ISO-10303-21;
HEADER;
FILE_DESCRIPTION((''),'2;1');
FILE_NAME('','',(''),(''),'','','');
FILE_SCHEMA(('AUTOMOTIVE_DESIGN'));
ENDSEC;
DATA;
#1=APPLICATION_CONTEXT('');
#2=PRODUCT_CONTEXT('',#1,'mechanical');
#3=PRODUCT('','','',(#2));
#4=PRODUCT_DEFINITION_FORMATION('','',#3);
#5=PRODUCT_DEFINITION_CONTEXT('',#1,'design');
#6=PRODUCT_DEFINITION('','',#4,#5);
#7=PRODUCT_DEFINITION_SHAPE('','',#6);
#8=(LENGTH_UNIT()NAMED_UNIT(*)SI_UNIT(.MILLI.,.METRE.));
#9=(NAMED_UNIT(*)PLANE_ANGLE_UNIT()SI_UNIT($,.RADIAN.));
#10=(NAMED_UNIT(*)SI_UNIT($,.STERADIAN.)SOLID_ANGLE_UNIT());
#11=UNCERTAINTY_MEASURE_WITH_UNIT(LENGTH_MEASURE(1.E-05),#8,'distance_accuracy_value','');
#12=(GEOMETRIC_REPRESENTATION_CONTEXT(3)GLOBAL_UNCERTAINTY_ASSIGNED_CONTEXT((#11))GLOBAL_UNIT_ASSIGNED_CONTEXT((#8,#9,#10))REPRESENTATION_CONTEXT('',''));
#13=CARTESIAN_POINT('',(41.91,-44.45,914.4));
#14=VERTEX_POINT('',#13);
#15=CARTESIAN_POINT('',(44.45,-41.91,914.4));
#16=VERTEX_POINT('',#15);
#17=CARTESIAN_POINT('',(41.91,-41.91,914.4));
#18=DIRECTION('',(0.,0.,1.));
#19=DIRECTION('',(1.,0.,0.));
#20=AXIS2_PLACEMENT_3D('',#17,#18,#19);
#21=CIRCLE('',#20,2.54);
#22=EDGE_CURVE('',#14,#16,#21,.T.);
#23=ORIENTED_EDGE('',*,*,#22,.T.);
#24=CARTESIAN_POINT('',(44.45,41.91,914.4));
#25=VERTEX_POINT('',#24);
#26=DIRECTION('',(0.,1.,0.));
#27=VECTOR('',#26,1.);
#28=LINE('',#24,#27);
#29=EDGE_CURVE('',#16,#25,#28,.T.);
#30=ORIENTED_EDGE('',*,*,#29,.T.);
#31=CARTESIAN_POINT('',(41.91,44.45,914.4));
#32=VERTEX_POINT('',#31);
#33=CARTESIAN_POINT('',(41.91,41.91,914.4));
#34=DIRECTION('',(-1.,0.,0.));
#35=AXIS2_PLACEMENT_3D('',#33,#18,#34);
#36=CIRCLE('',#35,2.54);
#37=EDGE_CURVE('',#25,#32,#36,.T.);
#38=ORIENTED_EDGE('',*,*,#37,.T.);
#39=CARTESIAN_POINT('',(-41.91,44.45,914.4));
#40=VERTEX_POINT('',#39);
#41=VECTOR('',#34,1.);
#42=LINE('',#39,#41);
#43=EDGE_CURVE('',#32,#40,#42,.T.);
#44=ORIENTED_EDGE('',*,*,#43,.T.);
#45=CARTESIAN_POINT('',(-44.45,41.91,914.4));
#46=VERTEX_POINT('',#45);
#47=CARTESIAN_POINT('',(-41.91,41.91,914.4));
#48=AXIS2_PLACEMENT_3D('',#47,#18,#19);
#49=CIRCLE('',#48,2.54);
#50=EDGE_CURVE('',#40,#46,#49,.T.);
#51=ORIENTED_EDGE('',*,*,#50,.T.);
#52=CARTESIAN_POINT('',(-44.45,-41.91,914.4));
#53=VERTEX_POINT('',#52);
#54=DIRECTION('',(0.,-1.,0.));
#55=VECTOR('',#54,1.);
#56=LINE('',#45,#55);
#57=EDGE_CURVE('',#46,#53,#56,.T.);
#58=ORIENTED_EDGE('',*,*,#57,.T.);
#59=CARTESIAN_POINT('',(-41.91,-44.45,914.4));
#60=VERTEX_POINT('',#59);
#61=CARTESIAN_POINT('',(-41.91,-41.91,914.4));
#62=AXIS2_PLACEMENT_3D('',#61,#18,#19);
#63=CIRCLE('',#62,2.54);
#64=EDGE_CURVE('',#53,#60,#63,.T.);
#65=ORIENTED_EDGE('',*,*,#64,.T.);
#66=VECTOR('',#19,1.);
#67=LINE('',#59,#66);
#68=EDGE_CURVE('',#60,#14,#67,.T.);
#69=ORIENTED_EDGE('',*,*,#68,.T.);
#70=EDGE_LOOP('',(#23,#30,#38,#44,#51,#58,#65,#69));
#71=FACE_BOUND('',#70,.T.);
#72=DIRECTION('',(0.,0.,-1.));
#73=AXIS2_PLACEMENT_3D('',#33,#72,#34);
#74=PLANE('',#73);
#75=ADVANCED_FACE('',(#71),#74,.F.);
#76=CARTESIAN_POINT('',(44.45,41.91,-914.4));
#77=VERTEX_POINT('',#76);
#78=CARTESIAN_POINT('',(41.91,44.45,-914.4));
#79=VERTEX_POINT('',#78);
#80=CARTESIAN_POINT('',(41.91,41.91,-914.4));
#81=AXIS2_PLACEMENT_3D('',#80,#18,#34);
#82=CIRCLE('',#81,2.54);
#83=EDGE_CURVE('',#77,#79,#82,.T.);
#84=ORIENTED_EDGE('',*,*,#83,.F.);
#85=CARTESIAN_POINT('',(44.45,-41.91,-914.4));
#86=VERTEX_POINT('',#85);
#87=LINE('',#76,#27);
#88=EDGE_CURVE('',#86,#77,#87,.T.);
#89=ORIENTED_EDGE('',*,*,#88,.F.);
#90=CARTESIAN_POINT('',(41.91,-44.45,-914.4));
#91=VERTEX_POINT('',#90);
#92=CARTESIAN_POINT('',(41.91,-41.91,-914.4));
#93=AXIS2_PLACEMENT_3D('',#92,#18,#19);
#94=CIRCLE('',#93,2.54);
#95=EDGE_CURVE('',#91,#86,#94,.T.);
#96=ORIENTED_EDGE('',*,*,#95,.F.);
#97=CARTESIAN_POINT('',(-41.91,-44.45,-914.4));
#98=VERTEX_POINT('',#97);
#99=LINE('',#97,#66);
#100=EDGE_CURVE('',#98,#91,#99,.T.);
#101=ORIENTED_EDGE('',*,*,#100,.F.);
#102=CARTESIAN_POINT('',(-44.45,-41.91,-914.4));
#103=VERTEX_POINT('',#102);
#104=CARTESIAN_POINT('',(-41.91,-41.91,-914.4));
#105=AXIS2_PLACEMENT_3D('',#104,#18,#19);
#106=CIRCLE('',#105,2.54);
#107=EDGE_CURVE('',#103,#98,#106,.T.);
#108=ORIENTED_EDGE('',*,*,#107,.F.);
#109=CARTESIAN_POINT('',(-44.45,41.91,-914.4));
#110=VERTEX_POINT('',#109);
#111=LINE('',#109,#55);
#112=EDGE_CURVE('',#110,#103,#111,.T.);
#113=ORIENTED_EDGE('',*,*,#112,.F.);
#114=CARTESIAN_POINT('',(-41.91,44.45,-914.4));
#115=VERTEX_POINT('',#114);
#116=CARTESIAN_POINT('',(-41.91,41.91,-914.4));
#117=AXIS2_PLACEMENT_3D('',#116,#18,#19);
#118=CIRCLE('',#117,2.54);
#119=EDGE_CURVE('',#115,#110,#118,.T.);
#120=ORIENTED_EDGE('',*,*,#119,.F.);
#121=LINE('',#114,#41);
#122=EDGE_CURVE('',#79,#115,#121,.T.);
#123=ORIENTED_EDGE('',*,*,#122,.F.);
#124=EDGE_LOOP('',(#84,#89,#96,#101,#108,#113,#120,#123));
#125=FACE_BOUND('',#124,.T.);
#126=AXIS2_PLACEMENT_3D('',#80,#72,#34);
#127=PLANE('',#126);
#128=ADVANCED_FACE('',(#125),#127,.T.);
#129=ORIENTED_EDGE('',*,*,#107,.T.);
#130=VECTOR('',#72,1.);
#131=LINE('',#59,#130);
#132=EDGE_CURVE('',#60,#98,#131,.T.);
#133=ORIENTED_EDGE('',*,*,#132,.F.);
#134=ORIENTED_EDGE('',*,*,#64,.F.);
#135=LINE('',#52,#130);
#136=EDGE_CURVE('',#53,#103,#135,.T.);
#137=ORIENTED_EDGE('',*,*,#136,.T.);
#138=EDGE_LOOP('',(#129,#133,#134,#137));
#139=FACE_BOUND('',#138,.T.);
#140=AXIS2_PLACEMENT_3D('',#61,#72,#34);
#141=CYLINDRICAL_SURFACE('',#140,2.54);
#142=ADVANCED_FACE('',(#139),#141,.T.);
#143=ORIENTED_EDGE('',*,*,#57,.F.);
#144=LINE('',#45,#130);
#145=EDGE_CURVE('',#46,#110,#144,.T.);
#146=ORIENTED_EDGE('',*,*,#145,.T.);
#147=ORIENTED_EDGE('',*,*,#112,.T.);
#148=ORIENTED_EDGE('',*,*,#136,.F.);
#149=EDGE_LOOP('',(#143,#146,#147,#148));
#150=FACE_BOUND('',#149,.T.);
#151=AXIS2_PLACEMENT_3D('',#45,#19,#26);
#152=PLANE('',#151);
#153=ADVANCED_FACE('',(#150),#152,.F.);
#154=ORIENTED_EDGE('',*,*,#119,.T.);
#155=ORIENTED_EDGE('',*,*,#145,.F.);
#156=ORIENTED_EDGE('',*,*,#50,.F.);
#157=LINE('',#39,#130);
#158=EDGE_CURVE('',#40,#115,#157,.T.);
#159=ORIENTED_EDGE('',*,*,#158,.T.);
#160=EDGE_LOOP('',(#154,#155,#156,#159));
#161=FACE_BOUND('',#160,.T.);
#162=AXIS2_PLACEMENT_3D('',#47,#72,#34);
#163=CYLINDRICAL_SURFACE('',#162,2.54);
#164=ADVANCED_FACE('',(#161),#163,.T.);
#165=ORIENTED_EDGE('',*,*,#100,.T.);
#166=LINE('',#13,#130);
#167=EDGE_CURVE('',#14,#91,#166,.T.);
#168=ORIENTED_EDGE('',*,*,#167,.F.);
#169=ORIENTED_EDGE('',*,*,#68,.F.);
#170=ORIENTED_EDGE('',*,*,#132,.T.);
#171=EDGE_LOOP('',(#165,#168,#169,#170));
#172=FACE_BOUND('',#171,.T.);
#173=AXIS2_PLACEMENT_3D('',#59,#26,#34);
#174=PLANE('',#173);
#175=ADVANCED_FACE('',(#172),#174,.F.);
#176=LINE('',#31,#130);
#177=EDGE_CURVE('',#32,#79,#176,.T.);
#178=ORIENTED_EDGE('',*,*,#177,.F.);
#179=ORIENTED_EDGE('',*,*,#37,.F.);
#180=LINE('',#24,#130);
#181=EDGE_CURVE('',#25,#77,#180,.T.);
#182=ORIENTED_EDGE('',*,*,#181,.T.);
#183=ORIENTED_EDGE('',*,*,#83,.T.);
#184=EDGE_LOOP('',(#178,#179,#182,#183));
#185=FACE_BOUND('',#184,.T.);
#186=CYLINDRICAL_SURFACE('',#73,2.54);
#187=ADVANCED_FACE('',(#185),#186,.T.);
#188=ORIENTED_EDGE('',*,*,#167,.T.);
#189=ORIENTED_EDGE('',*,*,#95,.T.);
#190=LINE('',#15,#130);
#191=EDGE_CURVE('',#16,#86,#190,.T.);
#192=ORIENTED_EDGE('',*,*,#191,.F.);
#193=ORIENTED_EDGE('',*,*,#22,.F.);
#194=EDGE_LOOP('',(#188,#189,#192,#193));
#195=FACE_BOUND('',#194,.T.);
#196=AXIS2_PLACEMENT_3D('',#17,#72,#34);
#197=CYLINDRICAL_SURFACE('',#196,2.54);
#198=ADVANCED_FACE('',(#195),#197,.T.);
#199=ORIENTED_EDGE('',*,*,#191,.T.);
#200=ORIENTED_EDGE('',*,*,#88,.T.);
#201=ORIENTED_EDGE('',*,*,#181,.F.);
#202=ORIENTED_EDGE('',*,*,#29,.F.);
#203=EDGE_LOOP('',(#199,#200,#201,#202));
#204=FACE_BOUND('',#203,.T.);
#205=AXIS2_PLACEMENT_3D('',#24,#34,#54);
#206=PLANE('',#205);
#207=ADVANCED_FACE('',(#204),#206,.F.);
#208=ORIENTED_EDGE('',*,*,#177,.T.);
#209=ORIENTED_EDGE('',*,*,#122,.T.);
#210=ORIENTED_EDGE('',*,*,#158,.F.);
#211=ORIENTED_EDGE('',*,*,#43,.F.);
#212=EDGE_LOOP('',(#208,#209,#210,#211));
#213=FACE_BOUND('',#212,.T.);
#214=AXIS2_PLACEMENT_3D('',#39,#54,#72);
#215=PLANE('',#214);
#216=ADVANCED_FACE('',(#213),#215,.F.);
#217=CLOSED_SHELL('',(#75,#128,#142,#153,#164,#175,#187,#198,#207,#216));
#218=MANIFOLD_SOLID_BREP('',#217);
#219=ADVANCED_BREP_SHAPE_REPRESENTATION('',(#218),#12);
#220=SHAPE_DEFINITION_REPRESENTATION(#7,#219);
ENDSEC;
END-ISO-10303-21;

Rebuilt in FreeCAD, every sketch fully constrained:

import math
import FreeCAD as App
import Part
import Sketcher
from FreeCAD import Vector
Q = App.Units.Quantity

doc = App.newDocument("Part")
params = doc.addObject("Spreadsheet::Sheet", "Params")
for row, (alias, value) in enumerate([
    ("sketch1_radius", "0.1 in"),
    ("sketch1_width", "3.3 in"),
    ("pad1_length", "72 in"),
], start=1):
    params.set(f"A{row}", alias)
    params.set(f"B{row}", "=" + value)
    params.setAlias(f"B{row}", alias)

body = doc.addObject("PartDesign::Body", "Body")

sketch1 = doc.addObject("Sketcher::SketchObject", "Sketch")
body.addObject(sketch1)
sketch1.AttachmentSupport = (doc.XY_Plane, [""])
sketch1.MapMode = "FlatFace"
sketch1.addGeometry([
    Part.LineSegment(Vector(41.91, 44.45, 0), Vector(-41.91, 44.45, 0)),
    Part.ArcOfCircle(Part.Circle(Vector(-41.91, 41.91, 0), Vector(0, 0, 1), 2.54), math.radians(90), math.radians(180)),
    Part.LineSegment(Vector(-44.45, 41.91, 0), Vector(-44.45, -41.91, 0)),
    Part.ArcOfCircle(Part.Circle(Vector(-41.91, -41.91, 0), Vector(0, 0, 1), 2.54), math.radians(-180), math.radians(-90)),
    Part.LineSegment(Vector(-41.91, -44.45, 0), Vector(41.91, -44.45, 0)),
    Part.ArcOfCircle(Part.Circle(Vector(41.91, -41.91, 0), Vector(0, 0, 1), 2.54), math.radians(-90), math.radians(0)),
    Part.LineSegment(Vector(44.45, -41.91, 0), Vector(44.45, 41.91, 0)),
    Part.ArcOfCircle(Part.Circle(Vector(41.91, 41.91, 0), Vector(0, 0, 1), 2.54), math.radians(0), math.radians(90)),
], False)
sketch1.addConstraint([
    Sketcher.Constraint("Tangent", 0, 2, 1, 1),
    Sketcher.Constraint("Tangent", 1, 2, 2, 1),
    Sketcher.Constraint("Tangent", 2, 2, 3, 1),
    Sketcher.Constraint("Tangent", 3, 2, 4, 1),
    Sketcher.Constraint("Tangent", 4, 2, 5, 1),
    Sketcher.Constraint("Tangent", 5, 2, 6, 1),
    Sketcher.Constraint("Tangent", 6, 2, 7, 1),
    Sketcher.Constraint("Tangent", 7, 2, 0, 1),
    Sketcher.Constraint("Horizontal", 0),
    Sketcher.Constraint("Vertical", 2),
    Sketcher.Constraint("Horizontal", 4),
    Sketcher.Constraint("Vertical", 6),
    Sketcher.Constraint("Equal", 1, 3),
    Sketcher.Constraint("Equal", 3, 5),
    Sketcher.Constraint("Equal", 5, 7),
    Sketcher.Constraint("Symmetric", 1, 3, 5, 3, -1, 1),
    Sketcher.Constraint("Equal", 4, 2),
    Sketcher.Constraint("Radius", 1, Q("0.1 in")),
    Sketcher.Constraint("DistanceX", 0, 2, 0, 1, Q("3.3 in")),
])
sketch1.setExpression("Constraints[17]", "Params.sketch1_radius")
sketch1.setExpression("Constraints[18]", "Params.sketch1_width")
pad1 = doc.addObject("PartDesign::Pad", "Pad")
body.addObject(pad1)
pad1.Profile = sketch1
pad1.setExpression("Length", "Params.pad1_length")
pad1.Midplane = True

doc.recompute()
